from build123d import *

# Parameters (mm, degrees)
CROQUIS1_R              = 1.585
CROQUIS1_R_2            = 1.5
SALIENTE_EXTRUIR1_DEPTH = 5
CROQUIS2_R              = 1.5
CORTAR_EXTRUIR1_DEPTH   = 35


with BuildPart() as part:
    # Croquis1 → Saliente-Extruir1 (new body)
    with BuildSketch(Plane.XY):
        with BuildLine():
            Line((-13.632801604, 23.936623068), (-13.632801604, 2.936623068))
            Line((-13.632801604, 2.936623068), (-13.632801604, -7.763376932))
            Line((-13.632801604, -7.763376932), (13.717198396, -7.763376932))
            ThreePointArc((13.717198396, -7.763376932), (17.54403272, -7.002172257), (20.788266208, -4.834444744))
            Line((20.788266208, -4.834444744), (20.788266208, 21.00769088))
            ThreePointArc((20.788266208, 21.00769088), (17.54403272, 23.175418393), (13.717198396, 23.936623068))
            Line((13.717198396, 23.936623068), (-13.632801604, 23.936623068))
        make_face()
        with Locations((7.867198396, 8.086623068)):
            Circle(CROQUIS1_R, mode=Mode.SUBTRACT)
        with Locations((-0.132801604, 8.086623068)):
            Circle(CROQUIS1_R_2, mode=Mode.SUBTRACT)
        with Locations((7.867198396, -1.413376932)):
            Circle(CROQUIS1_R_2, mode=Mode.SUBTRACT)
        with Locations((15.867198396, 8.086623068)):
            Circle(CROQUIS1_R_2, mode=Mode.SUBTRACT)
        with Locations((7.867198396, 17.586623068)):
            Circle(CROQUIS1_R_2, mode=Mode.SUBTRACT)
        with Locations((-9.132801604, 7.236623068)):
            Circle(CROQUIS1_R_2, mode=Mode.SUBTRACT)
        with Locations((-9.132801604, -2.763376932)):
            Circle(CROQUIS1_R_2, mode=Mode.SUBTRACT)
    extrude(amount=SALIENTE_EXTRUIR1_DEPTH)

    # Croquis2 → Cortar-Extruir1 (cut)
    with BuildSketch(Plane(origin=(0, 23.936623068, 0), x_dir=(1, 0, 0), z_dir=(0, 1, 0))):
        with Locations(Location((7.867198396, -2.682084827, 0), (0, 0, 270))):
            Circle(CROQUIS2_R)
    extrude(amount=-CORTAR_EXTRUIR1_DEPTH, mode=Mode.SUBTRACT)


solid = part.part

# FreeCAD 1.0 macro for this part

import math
import FreeCAD as App
import Part
import Sketcher
from FreeCAD import Vector
Q = App.Units.Quantity

doc = App.newDocument("Part")
params = doc.addObject("Spreadsheet::Sheet", "Params")
for row, (alias, value) in enumerate([
    ("sketch1_diameter", "3 mm"),
    ("sketch1_radius", "10 mm"),
    ("sketch1_diameter2", "3.17 mm"),
    ("sketch1_height", "31.7 mm"),
    ("sketch1_width", "27.35 mm"),
    ("pad1_length", "5 mm"),
    ("sketch2_diameter", "3 mm"),
    ("pocket1_length", "35 mm"),
], start=1):
    params.set(f"A{row}", alias)
    params.set(f"B{row}", "=" + value)
    params.setAlias(f"B{row}", alias)

body = doc.addObject("PartDesign::Body", "Body")

# Sketch on XY plane
sketch1 = body.newObject("Sketcher::SketchObject", "Sketch")
sketch1.AttachmentSupport = (doc.getObject("XY_Plane"), [""])
sketch1.MapMode = "FlatFace"
sketch1.addGeometry([
    Part.LineSegment(Vector(-13.6, 23.9, 0), Vector(-13.6, -7.8, 0)),  # 0
    Part.LineSegment(Vector(-13.6, -7.8, 0), Vector(13.7, -7.8, 0)),  # 1
    Part.ArcOfCircle(Part.Circle(Vector(13.7, 2.2, 0), Vector(0, 0, 1), 10), math.radians(-90), math.radians(-45)),  # 2
    Part.LineSegment(Vector(20.8, -4.8, 0), Vector(20.8, 21, 0)),  # 3
    Part.ArcOfCircle(Part.Circle(Vector(13.7, 13.9, 0), Vector(0, 0, 1), 10), math.radians(45), math.radians(90)),  # 4
    Part.LineSegment(Vector(13.7, 23.9, 0), Vector(-13.6, 23.9, 0)),  # 5
    Part.Circle(Vector(-9.1, -2.8, 0), Vector(0, 0, 1), 1.5),  # 6
    Part.Circle(Vector(-9.1, 7.2, 0), Vector(0, 0, 1), 1.5),  # 7
    Part.Circle(Vector(7.9, -1.4, 0), Vector(0, 0, 1), 1.5),  # 8
    Part.Circle(Vector(-0.1, 8.1, 0), Vector(0, 0, 1), 1.5),  # 9
    Part.Circle(Vector(7.9, 8.1, 0), Vector(0, 0, 1), 1.6),  # 10
    Part.Circle(Vector(15.9, 8.1, 0), Vector(0, 0, 1), 1.5),  # 11
    Part.Circle(Vector(7.9, 17.6, 0), Vector(0, 0, 1), 1.5),  # 12
], False)
sketch1.addConstraint([
    Sketcher.Constraint("Coincident", 0, 2, 1, 1),
    Sketcher.Constraint("Tangent", 1, 2, 2, 1),
    Sketcher.Constraint("Coincident", 2, 2, 3, 1),
    Sketcher.Constraint("Coincident", 3, 2, 4, 1),
    Sketcher.Constraint("Tangent", 4, 2, 5, 1),
    Sketcher.Constraint("Coincident", 5, 2, 0, 1),
    Sketcher.Constraint("Vertical", 0),
    Sketcher.Constraint("Horizontal", 1),
    Sketcher.Constraint("Vertical", 3),
    Sketcher.Constraint("Horizontal", 5),
    Sketcher.Constraint("Equal", 2, 4),
    Sketcher.Constraint("Equal", 6, 7),
    Sketcher.Constraint("Equal", 7, 8),
    Sketcher.Constraint("Equal", 8, 9),
    Sketcher.Constraint("Equal", 9, 11),
    Sketcher.Constraint("Equal", 11, 12),
    Sketcher.Constraint("Horizontal", 9, 3, 10, 3),
    Sketcher.Constraint("Horizontal", 10, 3, 11, 3),
    Sketcher.Constraint("Vertical", 2, 3, 4, 3),
    Sketcher.Constraint("Vertical", 6, 3, 7, 3),
    Sketcher.Constraint("Vertical", 8, 3, 10, 3),
    Sketcher.Constraint("Vertical", 10, 3, 12, 3),
    Sketcher.Constraint("Diameter", 6, Q("3 mm")),
    Sketcher.Constraint("Radius", 2, Q("10 mm")),
    Sketcher.Constraint("Diameter", 10, Q("3.17 mm")),
    Sketcher.Constraint("DistanceY", 0, 2, 0, 1, Q("31.7 mm")),
    Sketcher.Constraint("DistanceY", 6, 3, 2, 3, Q("5 mm")),
    Sketcher.Constraint("DistanceY", 6, 3, 7, 3, Q("10 mm")),
    Sketcher.Constraint("DistanceX", 6, 3, 8, 3, Q("17 mm")),
    Sketcher.Constraint("DistanceX", 7, 3, 9, 3, Q("9 mm")),
    Sketcher.Constraint("DistanceX", 10, 3, 11, 3, Q("8 mm")),
    Sketcher.Constraint("DistanceX", 1, 1, 1, 2, Q("27.35 mm")),
    Sketcher.Constraint("DistanceY", 8, 3, 9, 3, Q("9.5 mm")),
    Sketcher.Constraint("DistanceY", 10, 3, 12, 3, Q("9.5 mm")),
    Sketcher.Constraint("DistanceX", 0, 2, 6, 3, Q("4.5 mm")),
    Sketcher.Constraint("DistanceY", 8, 3, 2, 3, Q("3.65 mm")),
    Sketcher.Constraint("DistanceX", -1, 1, 2, 3, Q("13.717198 mm")),
    Sketcher.Constraint("DistanceY", 3, 1, 3, 2, Q("25.842136 mm")),
    Sketcher.Constraint("DistanceY", -1, 1, 3, 2, Q("21.007691 mm")),
])
sketch1.setExpression("Constraints[22]", "Params.sketch1_diameter")
sketch1.setExpression("Constraints[23]", "Params.sketch1_radius")
sketch1.setExpression("Constraints[24]", "Params.sketch1_diameter2")
sketch1.setExpression("Constraints[25]", "Params.sketch1_height")
sketch1.setExpression("Constraints[31]", "Params.sketch1_width")
pad1 = body.newObject("PartDesign::Pad", "Pad")
pad1.Profile = sketch1
pad1.setExpression("Length", "Params.pad1_length")

# Sketch on XZ plane
sketch2 = body.newObject("Sketcher::SketchObject", "Sketch001")
sketch2.AttachmentSupport = (doc.getObject("XZ_Plane"), [""])
sketch2.MapMode = "FlatFace"
sketch2.AttachmentOffset = App.Placement(Vector(0, 0, -23.936623), App.Rotation())
sketch2.addGeometry(Part.Circle(Vector(7.9, 2.7, 0), Vector(0, 0, 1), 1.5), False)
sketch2.addConstraint([
    Sketcher.Constraint("Diameter", 0, Q("3 mm")),
    Sketcher.Constraint("DistanceX", -1, 1, 0, 3, Q("7.867198 mm")),
    Sketcher.Constraint("DistanceY", -1, 1, 0, 3, Q("2.682085 mm")),
])
sketch2.setExpression("Constraints[0]", "Params.sketch2_diameter")
pocket1 = body.newObject("PartDesign::Pocket", "Pocket")
pocket1.Profile = sketch2
pocket1.setExpression("Length", "Params.pocket1_length")
pocket1.Reversed = True

doc.recompute()
